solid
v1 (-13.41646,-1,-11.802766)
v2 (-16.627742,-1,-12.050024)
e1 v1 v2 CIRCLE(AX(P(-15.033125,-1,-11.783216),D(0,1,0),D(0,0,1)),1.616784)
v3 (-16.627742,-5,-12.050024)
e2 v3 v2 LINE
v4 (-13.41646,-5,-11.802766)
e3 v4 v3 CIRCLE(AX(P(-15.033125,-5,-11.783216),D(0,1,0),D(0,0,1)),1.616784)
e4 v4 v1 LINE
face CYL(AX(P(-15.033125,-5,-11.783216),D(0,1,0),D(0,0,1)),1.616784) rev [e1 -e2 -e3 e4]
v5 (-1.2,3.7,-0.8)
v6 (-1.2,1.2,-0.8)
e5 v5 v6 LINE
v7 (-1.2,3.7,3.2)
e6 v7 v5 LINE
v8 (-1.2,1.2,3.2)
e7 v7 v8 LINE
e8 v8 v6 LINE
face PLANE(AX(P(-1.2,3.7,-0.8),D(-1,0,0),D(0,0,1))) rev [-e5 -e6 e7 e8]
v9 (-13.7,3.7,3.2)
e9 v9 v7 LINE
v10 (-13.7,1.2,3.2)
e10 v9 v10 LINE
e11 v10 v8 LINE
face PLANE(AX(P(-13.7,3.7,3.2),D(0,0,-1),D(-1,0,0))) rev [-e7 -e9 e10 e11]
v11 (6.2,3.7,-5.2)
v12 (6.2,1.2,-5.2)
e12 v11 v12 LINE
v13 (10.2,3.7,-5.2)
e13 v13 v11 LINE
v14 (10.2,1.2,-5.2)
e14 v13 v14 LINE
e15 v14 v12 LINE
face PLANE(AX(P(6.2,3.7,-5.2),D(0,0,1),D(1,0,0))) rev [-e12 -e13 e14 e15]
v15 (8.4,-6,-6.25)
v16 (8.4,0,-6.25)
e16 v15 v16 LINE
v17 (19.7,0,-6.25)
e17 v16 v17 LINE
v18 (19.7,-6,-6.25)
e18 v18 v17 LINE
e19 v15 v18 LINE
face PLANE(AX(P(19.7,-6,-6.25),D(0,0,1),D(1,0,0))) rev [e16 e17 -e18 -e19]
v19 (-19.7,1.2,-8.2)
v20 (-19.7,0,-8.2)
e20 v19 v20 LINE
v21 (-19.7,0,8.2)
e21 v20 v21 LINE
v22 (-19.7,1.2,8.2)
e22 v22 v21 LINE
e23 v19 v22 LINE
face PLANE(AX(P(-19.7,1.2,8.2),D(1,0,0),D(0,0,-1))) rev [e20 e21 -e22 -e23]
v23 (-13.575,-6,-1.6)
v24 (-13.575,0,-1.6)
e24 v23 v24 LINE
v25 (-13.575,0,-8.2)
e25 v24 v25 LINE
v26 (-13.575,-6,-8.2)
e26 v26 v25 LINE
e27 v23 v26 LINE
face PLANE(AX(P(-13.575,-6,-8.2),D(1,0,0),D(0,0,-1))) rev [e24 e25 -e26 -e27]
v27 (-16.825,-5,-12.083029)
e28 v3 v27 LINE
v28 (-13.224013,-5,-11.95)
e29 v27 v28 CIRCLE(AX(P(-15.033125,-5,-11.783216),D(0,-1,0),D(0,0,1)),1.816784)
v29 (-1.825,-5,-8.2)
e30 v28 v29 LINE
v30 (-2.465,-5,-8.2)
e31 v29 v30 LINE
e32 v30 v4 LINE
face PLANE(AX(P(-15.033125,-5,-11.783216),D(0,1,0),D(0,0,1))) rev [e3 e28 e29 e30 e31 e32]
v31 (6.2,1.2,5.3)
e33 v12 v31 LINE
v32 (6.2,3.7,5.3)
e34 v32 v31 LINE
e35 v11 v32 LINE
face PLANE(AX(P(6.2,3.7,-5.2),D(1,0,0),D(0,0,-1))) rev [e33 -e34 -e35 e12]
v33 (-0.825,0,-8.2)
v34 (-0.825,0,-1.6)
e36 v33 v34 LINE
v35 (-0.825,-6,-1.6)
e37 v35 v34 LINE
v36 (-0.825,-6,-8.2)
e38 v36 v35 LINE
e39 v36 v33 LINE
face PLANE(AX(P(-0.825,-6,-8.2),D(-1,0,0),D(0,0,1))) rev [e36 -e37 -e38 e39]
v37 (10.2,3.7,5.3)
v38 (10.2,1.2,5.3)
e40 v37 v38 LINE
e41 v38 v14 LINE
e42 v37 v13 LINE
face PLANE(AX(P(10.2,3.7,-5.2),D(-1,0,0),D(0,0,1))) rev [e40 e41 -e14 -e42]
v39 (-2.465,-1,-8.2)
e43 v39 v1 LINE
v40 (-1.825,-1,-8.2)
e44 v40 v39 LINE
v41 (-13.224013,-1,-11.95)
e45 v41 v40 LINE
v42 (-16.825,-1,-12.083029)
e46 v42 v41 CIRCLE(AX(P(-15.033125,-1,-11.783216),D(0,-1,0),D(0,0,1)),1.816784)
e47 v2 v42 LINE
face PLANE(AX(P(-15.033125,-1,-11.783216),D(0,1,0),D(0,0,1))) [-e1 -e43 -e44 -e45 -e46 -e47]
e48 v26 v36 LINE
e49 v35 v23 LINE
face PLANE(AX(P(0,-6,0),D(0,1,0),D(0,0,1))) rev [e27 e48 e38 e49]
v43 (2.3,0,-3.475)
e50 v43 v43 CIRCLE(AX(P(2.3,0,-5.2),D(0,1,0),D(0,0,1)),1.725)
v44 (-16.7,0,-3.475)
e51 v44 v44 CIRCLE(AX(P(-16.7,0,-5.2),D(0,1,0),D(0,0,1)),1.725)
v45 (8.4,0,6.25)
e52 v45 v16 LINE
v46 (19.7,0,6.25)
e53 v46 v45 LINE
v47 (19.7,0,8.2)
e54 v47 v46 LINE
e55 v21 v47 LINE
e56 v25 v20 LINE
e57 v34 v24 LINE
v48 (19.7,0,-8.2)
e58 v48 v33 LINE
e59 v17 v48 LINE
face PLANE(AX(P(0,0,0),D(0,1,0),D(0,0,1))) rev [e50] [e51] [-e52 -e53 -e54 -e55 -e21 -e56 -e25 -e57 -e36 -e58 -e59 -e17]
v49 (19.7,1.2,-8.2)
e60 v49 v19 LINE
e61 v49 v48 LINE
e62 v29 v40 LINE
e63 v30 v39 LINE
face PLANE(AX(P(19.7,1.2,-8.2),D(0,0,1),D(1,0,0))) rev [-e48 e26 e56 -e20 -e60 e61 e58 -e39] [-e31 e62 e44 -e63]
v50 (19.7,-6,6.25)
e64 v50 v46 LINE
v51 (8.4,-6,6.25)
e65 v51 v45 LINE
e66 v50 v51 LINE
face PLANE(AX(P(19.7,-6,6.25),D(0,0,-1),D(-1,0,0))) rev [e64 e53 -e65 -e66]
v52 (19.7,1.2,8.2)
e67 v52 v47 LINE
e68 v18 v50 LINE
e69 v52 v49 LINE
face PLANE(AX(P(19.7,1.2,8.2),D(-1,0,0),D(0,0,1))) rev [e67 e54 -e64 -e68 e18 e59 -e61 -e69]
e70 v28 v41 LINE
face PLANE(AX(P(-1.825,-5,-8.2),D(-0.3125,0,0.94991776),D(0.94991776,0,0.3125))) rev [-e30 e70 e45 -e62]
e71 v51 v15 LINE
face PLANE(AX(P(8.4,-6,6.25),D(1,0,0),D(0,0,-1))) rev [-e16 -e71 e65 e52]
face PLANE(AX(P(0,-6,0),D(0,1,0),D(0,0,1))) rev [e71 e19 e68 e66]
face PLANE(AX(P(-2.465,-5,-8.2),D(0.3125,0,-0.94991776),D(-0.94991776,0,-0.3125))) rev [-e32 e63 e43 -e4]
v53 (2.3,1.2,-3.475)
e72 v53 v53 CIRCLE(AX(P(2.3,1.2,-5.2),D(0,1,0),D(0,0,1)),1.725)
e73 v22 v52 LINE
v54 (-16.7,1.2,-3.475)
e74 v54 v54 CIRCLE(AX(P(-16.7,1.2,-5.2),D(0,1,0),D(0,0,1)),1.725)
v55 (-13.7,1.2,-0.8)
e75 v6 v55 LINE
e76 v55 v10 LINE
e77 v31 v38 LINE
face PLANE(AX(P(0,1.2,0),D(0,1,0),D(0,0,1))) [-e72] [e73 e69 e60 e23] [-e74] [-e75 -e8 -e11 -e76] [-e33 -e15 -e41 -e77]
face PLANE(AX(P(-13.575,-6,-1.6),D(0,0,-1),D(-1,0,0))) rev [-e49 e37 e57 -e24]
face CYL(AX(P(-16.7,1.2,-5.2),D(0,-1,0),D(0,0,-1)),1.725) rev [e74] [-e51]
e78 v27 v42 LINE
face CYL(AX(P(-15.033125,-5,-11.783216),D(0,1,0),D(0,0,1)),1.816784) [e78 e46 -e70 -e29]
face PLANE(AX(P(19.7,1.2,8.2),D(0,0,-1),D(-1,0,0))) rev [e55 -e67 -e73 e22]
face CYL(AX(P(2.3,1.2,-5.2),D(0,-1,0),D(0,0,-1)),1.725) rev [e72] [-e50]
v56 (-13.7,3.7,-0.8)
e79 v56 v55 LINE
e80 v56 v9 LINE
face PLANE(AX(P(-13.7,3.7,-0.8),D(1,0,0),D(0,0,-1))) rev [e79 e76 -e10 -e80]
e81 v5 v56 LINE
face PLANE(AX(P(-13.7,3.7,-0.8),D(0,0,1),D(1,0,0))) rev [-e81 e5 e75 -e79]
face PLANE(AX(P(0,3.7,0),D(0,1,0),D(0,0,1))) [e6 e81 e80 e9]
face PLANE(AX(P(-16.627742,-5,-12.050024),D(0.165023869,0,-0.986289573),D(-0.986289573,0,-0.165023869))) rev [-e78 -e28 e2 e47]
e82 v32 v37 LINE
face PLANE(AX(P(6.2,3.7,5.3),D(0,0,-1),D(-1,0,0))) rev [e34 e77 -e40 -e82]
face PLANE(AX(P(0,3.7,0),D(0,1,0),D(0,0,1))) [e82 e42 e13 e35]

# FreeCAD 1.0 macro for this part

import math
import FreeCAD as App
import Part
import Sketcher

V = App.Vector

doc = App.newDocument("Part")
params = doc.addObject("Spreadsheet::Sheet", "Params")
for row, (alias, value) in enumerate([
    ("sketch1_diameter", "3.45 mm"),
    ("sketch1_width", "39.4 mm"),
    ("sketch1_height", "16.4 mm"),
    ("pad1_length", "1.2 mm"),
    ("sketch2_width", "4 mm"),
    ("sketch2_width2", "12.5 mm"),
    ("sketch2_height", "10.5 mm"),
    ("pad2_length", "2.5 mm"),
    ("sketch3_width", "11.3 mm"),
    ("sketch3_height", "12.5 mm"),
    ("sketch3_height2", "6.6 mm"),
    ("sketch3_width2", "12.75 mm"),
    ("pad3_length", "6 mm"),
    ("sketch4_length", "12 mm"),
    ("sketch4_length2", "0.2 mm"),
    ("sketch4_width", "0.64 mm"),
    ("pad4_length", "4 mm"),
], start=1):
    params.set(f"A{row}", alias)
    params.set(f"B{row}", "=" + value)
    params.setAlias(f"B{row}", alias)

body = doc.addObject("PartDesign::Body", "Body")

# Sketch on XZ plane
sketch1 = body.newObject("Sketcher::SketchObject", "Sketch")
sketch1.AttachmentSupport = (doc.getObject("XZ_Plane"), [""])
sketch1.MapMode = "FlatFace"
sketch1.addGeometry([
    Part.LineSegment(V(-19.7, -8.2, 0), V(-19.7, 8.2, 0)),  # 0
    Part.LineSegment(V(-19.7, 8.2, 0), V(19.7, 8.2, 0)),  # 1
    Part.LineSegment(V(19.7, 8.2, 0), V(19.7, -8.2, 0)),  # 2
    Part.LineSegment(V(19.7, -8.2, 0), V(-19.7, -8.2, 0)),  # 3
    Part.Circle(V(-16.7, -5.2, 0), V(0, 0, 1), 1.7),  # 4
    Part.Circle(V(2.3, -5.2, 0), V(0, 0, 1), 1.7),  # 5
], False)
sketch1.addConstraint([
    Sketcher.Constraint("Coincident", 0, 2, 1, 1),
    Sketcher.Constraint("Coincident", 1, 2, 2, 1),
    Sketcher.Constraint("Coincident", 2, 2, 3, 1),
    Sketcher.Constraint("Coincident", 3, 2, 0, 1),
    Sketcher.Constraint("Vertical", 0),
    Sketcher.Constraint("Horizontal", 1),
    Sketcher.Constraint("Vertical", 2),
    Sketcher.Constraint("Horizontal", 3),
    Sketcher.Constraint("Equal", 4, 5),
    Sketcher.Constraint("Symmetric", 0, 2, 2, 2, -1, 1),
    Sketcher.Constraint("Horizontal", 4, 3, 5, 3),
    Sketcher.Constraint("Diameter", 4, 3.45),
    Sketcher.Constraint("DistanceX", 1, 1, 1, 2, 39.4),
    Sketcher.Constraint("DistanceY", 0, 1, 0, 2, 16.4),
    Sketcher.Constraint("DistanceX", 4, 3, 5, 3, 19.0),
    Sketcher.Constraint("DistanceX", 0, 2, 4, 3, 3.0),
    Sketcher.Constraint("DistanceY", 2, 2, 5, 3, 3.0),
])
sketch1.setExpression("Constraints[11]", "Params.sketch1_diameter")
sketch1.setExpression("Constraints[12]", "Params.sketch1_width")
sketch1.setExpression("Constraints[13]", "Params.sketch1_height")
pad1 = body.newObject("PartDesign::Pad", "Pad")
pad1.Profile = sketch1
pad1.setExpression("Length", "Params.pad1_length")
pad1.Reversed = True

# Sketch on XZ plane
sketch2 = body.newObject("Sketcher::SketchObject", "Sketch001")
sketch2.AttachmentSupport = (doc.getObject("XZ_Plane"), [""])
sketch2.MapMode = "FlatFace"
sketch2.AttachmentOffset = App.Placement(V(0, 0, -1.2), App.Rotation())
sketch2.addGeometry([
    Part.LineSegment(V(-13.7, -0.8, 0), V(-13.7, 3.2, 0)),  # 0
    Part.LineSegment(V(-13.7, 3.2, 0), V(-1.2, 3.2, 0)),  # 1
    Part.LineSegment(V(-1.2, 3.2, 0), V(-1.2, -0.8, 0)),  # 2
    Part.LineSegment(V(-1.2, -0.8, 0), V(-13.7, -0.8, 0)),  # 3
    Part.LineSegment(V(6.2, -5.2, 0), V(6.2, 5.3, 0)),  # 4
    Part.LineSegment(V(6.2, 5.3, 0), V(10.2, 5.3, 0)),  # 5
    Part.LineSegment(V(10.2, 5.3, 0), V(10.2, -5.2, 0)),  # 6
    Part.LineSegment(V(10.2, -5.2, 0), V(6.2, -5.2, 0)),  # 7
], False)
sketch2.addConstraint([
    Sketcher.Constraint("Coincident", 0, 2, 1, 1),
    Sketcher.Constraint("Coincident", 1, 2, 2, 1),
    Sketcher.Constraint("Coincident", 2, 2, 3, 1),
    Sketcher.Constraint("Coincident", 3, 2, 0, 1),
    Sketcher.Constraint("Coincident", 4, 2, 5, 1),
    Sketcher.Constraint("Coincident", 5, 2, 6, 1),
    Sketcher.Constraint("Coincident", 6, 2, 7, 1),
    Sketcher.Constraint("Coincident", 7, 2, 4, 1),
    Sketcher.Constraint("Vertical", 0),
    Sketcher.Constraint("Horizontal", 1),
    Sketcher.Constraint("Vertical", 2),
    Sketcher.Constraint("Horizontal", 3),
    Sketcher.Constraint("Vertical", 4),
    Sketcher.Constraint("Horizontal", 5),
    Sketcher.Constraint("Vertical", 6),
    Sketcher.Constraint("Horizontal", 7),
    Sketcher.Constraint("Equal", 7, 0),
    Sketcher.Constraint("DistanceX", 5, 1, 5, 2, 4.0),
    Sketcher.Constraint("DistanceX", 1, 1, 1, 2, 12.5),
    Sketcher.Constraint("DistanceY", 4, 1, 4, 2, 10.5),
    Sketcher.Constraint("DistanceX", 0, 2, -1, 1, 13.7),
    Sketcher.Constraint("DistanceY", -1, 1, 0, 2, 3.2),
    Sketcher.Constraint("DistanceX", -1, 1, 4, 2, 6.2),
    Sketcher.Constraint("DistanceY", -1, 1, 4, 2, 5.3),
])
sketch2.setExpression("Constraints[17]", "Params.sketch2_width")
sketch2.setExpression("Constraints[18]", "Params.sketch2_width2")
sketch2.setExpression("Constraints[19]", "Params.sketch2_height")
pad2 = body.newObject("PartDesign::Pad", "Pad001")
pad2.Profile = sketch2
pad2.setExpression("Length", "Params.pad2_length")
pad2.Reversed = True

# Sketch on XZ plane
sketch3 = body.newObject("Sketcher::SketchObject", "Sketch002")
sketch3.AttachmentSupport = (doc.getObject("XZ_Plane"), [""])
sketch3.MapMode = "FlatFace"
sketch3.addGeometry([
    Part.LineSegment(V(8, 6, 0), V(8, -6, 0)),  # 0
    Part.LineSegment(V(8, -6, 0), V(20, -6, 0)),  # 1
    Part.LineSegment(V(20, -6, 0), V(20, 6, 0)),  # 2
    Part.LineSegment(V(20, 6, 0), V(8, 6, 0)),  # 3
    Part.LineSegment(V(-14, -2, 0), V(-14, -8, 0)),  # 4
    Part.LineSegment(V(-14, -8, 0), V(-1, -8, 0)),  # 5
    Part.LineSegment(V(-1, -8, 0), V(-1, -2, 0)),  # 6
    Part.LineSegment(V(-1, -2, 0), V(-14, -2, 0)),  # 7
], False)
sketch3.addConstraint([
    Sketcher.Constraint("Coincident", 0, 2, 1, 1),
    Sketcher.Constraint("Coincident", 1, 2, 2, 1),
    Sketcher.Constraint("Coincident", 2, 2, 3, 1),
    Sketcher.Constraint("Coincident", 3, 2, 0, 1),
    Sketcher.Constraint("Coincident", 4, 2, 5, 1),
    Sketcher.Constraint("Coincident", 5, 2, 6, 1),
    Sketcher.Constraint("Coincident", 6, 2, 7, 1),
    Sketcher.Constraint("Coincident", 7, 2, 4, 1),
    Sketcher.Constraint("Vertical", 0),
    Sketcher.Constraint("Horizontal", 1),
    Sketcher.Constraint("Vertical", 2),
    Sketcher.Constraint("Horizontal", 3),
    Sketcher.Constraint("Vertical", 4),
    Sketcher.Constraint("Horizontal", 5),
    Sketcher.Constraint("Vertical", 6),
    Sketcher.Constraint("Horizontal", 7),
    Sketcher.Constraint("DistanceX", 1, 1, 1, 2, 11.3),
    Sketcher.Constraint("DistanceY", 0, 2, 0, 1, 12.5),
    Sketcher.Constraint("DistanceY", 4, 2, 4, 1, 6.6),
    Sketcher.Constraint("DistanceX", 5, 1, 5, 2, 12.75),
    Sketcher.Constraint("DistanceX", -1, 1, 0, 2, 8.4),
    Sketcher.Constraint("DistanceY", 4, 2, -1, 1, 8.2),
    Sketcher.Constraint("DistanceY", 0, 2, -1, 1, 6.25),
    Sketcher.Constraint("DistanceX", 4, 2, -1, 1, 13.575),
])
sketch3.setExpression("Constraints[16]", "Params.sketch3_width")
sketch3.setExpression("Constraints[17]", "Params.sketch3_height")
sketch3.setExpression("Constraints[18]", "Params.sketch3_height2")
sketch3.setExpression("Constraints[19]", "Params.sketch3_width2")
pad3 = body.newObject("PartDesign::Pad", "Pad002")
pad3.Profile = sketch3
pad3.setExpression("Length", "Params.pad3_length")

# Sketch on XZ plane
sketch4 = body.newObject("Sketcher::SketchObject", "Sketch003")
sketch4.AttachmentSupport = (doc.getObject("XZ_Plane"), [""])
sketch4.MapMode = "FlatFace"
sketch4.AttachmentOffset = App.Placement(V(0, 0, 3), App.Rotation())
sketch4.addGeometry([
    Part.LineSegment(V(-13.22, -11.95, 0), V(-1.82, -8.2, 0)),  # 0
    Part.LineSegment(V(-1.82, -8.2, 0), V(-2.46, -8.2, 0)),  # 1
    Part.LineSegment(V(-2.46, -8.2, 0), V(-13.42, -11.8, 0)),  # 2
    Part.ArcOfCircle(Part.Circle(V(-15.03, -11.78, 0), V(0, 0, 1), 1.62), math.radians(-171), math.radians(-1)),  # 3
    Part.LineSegment(V(-16.63, -12.05, 0), V(-16.82, -12.08, 0)),  # 4
    Part.ArcOfCircle(Part.Circle(V(-15.03, -11.78, 0), V(0, 0, 1), 1.82), math.radians(-171), math.radians(-5)),  # 5
], False)
sketch4.addConstraint([
    Sketcher.Constraint("Coincident", 0, 2, 1, 1),
    Sketcher.Constraint("Coincident", 1, 2, 2, 1),
    Sketcher.Constraint("Coincident", 2, 2, 3, 2),
    Sketcher.Constraint("Coincident", 3, 1, 4, 1),
    Sketcher.Constraint("Coincident", 4, 2, 5, 1),
    Sketcher.Constraint("Coincident", 5, 2, 0, 1),
    Sketcher.Constraint("Horizontal", 1),
    Sketcher.Constraint("Coincident", 5, 3, 3, 3),
    Sketcher.Constraint("Parallel", 0, 2),
    Sketcher.Constraint("Distance", 0, 12.0),
    Sketcher.Constraint("Distance", 4, 0.2),
    Sketcher.Constraint("DistanceX", 1, 2, 1, 1, 0.64),
    Sketcher.Constraint("DistanceY", 0, 2, -1, 1, 8.2),
    Sketcher.Constraint("DistanceY", 5, 2, -1, 1, 11.95),
    Sketcher.Constraint("DistanceX", 4, 2, 1, 2, 14.36),
    Sketcher.Constraint("DistanceX", 0, 2, -1, 1, 1.825),
    Sketcher.Constraint("Radius", 3, 1.616784),
    Sketcher.Constraint("Distance", 2, 11.52885),
    Sketcher.Constraint("DistanceY", 3, 1, 2, 2, 0.247258),
])
sketch4.setExpression("Constraints[9]", "Params.sketch4_length")
sketch4.setExpression("Constraints[10]", "Params.sketch4_length2")
sketch4.setExpression("Constraints[11]", "Params.sketch4_width")
pad4 = body.newObject("PartDesign::Pad", "Pad003")
pad4.Profile = sketch4
pad4.setExpression("Length", "Params.pad4_length")
pad4.Midplane = True

doc.recompute()
